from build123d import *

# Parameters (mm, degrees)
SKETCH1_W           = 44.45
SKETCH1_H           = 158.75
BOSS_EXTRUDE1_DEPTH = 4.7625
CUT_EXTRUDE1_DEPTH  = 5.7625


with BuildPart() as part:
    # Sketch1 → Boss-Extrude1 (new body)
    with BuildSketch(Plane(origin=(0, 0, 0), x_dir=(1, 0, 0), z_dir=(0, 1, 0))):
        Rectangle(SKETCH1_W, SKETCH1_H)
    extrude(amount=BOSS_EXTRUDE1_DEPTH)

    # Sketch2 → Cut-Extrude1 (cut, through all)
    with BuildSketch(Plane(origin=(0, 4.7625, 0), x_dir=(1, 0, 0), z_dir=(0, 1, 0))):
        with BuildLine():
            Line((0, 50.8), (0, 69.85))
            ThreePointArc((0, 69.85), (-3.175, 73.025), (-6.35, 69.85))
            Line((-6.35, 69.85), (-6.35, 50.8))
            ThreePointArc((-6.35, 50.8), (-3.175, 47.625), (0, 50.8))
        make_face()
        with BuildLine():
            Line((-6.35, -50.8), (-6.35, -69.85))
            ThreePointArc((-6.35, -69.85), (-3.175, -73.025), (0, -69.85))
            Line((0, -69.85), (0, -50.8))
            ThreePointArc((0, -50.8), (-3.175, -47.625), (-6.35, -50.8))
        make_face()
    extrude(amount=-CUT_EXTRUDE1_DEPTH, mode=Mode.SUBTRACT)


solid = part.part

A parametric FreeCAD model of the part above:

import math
import FreeCAD as App
import Part
import Sketcher
from FreeCAD import Vector
Q = App.Units.Quantity

doc = App.newDocument("Part")
body = doc.addObject("PartDesign::Body", "Body")

# Sketch on XZ plane
sketch1 = body.newObject("Sketcher::SketchObject", "Sketch")
sketch1.AttachmentSupport = (doc.getObject("XZ_Plane"), [""])
sketch1.MapMode = "FlatFace"
sketch1.addGeometry([
    Part.LineSegment(Vector(-22, -79, 0), Vector(-22, 79, 0)),
    Part.LineSegment(Vector(-22, 79, 0), Vector(22, 79, 0)),
    Part.LineSegment(Vector(22, 79, 0), Vector(22, -79, 0)),
    Part.LineSegment(Vector(22, -79, 0), Vector(-22, -79, 0)),
], False)
sketch1.addConstraint([
    Sketcher.Constraint("Coincident", 0, 2, 1, 1),
    Sketcher.Constraint("Coincident", 1, 2, 2, 1),
    Sketcher.Constraint("Coincident", 2, 2, 3, 1),
    Sketcher.Constraint("Coincident", 3, 2, 0, 1),
    Sketcher.Constraint("Vertical", 0),
    Sketcher.Constraint("Horizontal", 1),
    Sketcher.Constraint("Vertical", 2),
    Sketcher.Constraint("Horizontal", 3),
    Sketcher.Constraint("Symmetric", 0, 2, 2, 2, -1, 1),
    Sketcher.Constraint("DistanceX", 1, 1, 1, 2, Q("1.75 in")),
    Sketcher.Constraint("DistanceY", 0, 1, 0, 2, Q("6.25 in")),
])
pad1 = body.newObject("PartDesign::Pad", "Pad")
pad1.Profile = sketch1
pad1.Length = Q("0.1875 in")
pad1.Reversed = True

# Sketch on XZ plane
sketch2 = body.newObject("Sketcher::SketchObject", "Sketch001")
sketch2.AttachmentSupport = (doc.getObject("XZ_Plane"), [""])
sketch2.MapMode = "FlatFace"
sketch2.AttachmentOffset = App.Placement(Vector(0, 0, -0.1875 * 25.4), App.Rotation())
sketch2.addGeometry([
    Part.LineSegment(Vector(0, -50.8, 0), Vector(0, -69.8, 0)),  # 0
    Part.ArcOfCircle(Part.Circle(Vector(-3.2, -69.8, 0), Vector(0, 0, 1), 3.2), math.radians(180), math.radians(360)),  # 1
    Part.LineSegment(Vector(-6.3, -69.8, 0), Vector(-6.3, -50.8, 0)),  # 2
    Part.ArcOfCircle(Part.Circle(Vector(-3.2, -50.8, 0), Vector(0, 0, 1), 3.2), math.radians(0), math.radians(180)),  # 3
    Part.LineSegment(Vector(-6.3, 50.8, 0), Vector(-6.3, 69.8, 0)),  # 4
    Part.ArcOfCircle(Part.Circle(Vector(-3.2, 69.8, 0), Vector(0, 0, 1), 3.2), math.radians(0), math.radians(180)),  # 5
    Part.LineSegment(Vector(0, 69.8, 0), Vector(0, 50.8, 0)),  # 6
    Part.ArcOfCircle(Part.Circle(Vector(-3.2, 50.8, 0), Vector(0, 0, 1), 3.2), math.radians(180), math.radians(360)),  # 7
], False)
sketch2.addConstraint([
    Sketcher.Constraint("Tangent", 0, 2, 1, 2),
    Sketcher.Constraint("Tangent", 1, 1, 2, 1),
    Sketcher.Constraint("Tangent", 2, 2, 3, 2),
    Sketcher.Constraint("Tangent", 3, 1, 0, 1),
    Sketcher.Constraint("Tangent", 4, 2, 5, 2),
    Sketcher.Constraint("Tangent", 5, 1, 6, 1),
    Sketcher.Constraint("Tangent", 6, 2, 7, 2),
    Sketcher.Constraint("Tangent", 7, 1, 4, 1),
    Sketcher.Constraint("Vertical", 0),
    Sketcher.Constraint("Vertical", 2),
    Sketcher.Constraint("Vertical", 4),
    Sketcher.Constraint("Vertical", 6),
    Sketcher.Constraint("Equal", 3, 5),
    Sketcher.Constraint("Symmetric", 0, 2, 5, 1, -1, 1),
    Sketcher.Constraint("Symmetric", 3, 3, 7, 3, -1),
    Sketcher.Constraint("DistanceY", 3, 3, -1, 1, Q("2 in")),
    Sketcher.Constraint("Radius", 1, Q("0.125 in")),
    Sketcher.Constraint("DistanceY", 0, 2, 0, 1, Q("0.75 in")),
])
pocket1 = body.newObject("PartDesign::Pocket", "Pocket")
pocket1.Profile = sketch2
pocket1.Type = "ThroughAll"
pocket1.Reversed = True

doc.recompute()
